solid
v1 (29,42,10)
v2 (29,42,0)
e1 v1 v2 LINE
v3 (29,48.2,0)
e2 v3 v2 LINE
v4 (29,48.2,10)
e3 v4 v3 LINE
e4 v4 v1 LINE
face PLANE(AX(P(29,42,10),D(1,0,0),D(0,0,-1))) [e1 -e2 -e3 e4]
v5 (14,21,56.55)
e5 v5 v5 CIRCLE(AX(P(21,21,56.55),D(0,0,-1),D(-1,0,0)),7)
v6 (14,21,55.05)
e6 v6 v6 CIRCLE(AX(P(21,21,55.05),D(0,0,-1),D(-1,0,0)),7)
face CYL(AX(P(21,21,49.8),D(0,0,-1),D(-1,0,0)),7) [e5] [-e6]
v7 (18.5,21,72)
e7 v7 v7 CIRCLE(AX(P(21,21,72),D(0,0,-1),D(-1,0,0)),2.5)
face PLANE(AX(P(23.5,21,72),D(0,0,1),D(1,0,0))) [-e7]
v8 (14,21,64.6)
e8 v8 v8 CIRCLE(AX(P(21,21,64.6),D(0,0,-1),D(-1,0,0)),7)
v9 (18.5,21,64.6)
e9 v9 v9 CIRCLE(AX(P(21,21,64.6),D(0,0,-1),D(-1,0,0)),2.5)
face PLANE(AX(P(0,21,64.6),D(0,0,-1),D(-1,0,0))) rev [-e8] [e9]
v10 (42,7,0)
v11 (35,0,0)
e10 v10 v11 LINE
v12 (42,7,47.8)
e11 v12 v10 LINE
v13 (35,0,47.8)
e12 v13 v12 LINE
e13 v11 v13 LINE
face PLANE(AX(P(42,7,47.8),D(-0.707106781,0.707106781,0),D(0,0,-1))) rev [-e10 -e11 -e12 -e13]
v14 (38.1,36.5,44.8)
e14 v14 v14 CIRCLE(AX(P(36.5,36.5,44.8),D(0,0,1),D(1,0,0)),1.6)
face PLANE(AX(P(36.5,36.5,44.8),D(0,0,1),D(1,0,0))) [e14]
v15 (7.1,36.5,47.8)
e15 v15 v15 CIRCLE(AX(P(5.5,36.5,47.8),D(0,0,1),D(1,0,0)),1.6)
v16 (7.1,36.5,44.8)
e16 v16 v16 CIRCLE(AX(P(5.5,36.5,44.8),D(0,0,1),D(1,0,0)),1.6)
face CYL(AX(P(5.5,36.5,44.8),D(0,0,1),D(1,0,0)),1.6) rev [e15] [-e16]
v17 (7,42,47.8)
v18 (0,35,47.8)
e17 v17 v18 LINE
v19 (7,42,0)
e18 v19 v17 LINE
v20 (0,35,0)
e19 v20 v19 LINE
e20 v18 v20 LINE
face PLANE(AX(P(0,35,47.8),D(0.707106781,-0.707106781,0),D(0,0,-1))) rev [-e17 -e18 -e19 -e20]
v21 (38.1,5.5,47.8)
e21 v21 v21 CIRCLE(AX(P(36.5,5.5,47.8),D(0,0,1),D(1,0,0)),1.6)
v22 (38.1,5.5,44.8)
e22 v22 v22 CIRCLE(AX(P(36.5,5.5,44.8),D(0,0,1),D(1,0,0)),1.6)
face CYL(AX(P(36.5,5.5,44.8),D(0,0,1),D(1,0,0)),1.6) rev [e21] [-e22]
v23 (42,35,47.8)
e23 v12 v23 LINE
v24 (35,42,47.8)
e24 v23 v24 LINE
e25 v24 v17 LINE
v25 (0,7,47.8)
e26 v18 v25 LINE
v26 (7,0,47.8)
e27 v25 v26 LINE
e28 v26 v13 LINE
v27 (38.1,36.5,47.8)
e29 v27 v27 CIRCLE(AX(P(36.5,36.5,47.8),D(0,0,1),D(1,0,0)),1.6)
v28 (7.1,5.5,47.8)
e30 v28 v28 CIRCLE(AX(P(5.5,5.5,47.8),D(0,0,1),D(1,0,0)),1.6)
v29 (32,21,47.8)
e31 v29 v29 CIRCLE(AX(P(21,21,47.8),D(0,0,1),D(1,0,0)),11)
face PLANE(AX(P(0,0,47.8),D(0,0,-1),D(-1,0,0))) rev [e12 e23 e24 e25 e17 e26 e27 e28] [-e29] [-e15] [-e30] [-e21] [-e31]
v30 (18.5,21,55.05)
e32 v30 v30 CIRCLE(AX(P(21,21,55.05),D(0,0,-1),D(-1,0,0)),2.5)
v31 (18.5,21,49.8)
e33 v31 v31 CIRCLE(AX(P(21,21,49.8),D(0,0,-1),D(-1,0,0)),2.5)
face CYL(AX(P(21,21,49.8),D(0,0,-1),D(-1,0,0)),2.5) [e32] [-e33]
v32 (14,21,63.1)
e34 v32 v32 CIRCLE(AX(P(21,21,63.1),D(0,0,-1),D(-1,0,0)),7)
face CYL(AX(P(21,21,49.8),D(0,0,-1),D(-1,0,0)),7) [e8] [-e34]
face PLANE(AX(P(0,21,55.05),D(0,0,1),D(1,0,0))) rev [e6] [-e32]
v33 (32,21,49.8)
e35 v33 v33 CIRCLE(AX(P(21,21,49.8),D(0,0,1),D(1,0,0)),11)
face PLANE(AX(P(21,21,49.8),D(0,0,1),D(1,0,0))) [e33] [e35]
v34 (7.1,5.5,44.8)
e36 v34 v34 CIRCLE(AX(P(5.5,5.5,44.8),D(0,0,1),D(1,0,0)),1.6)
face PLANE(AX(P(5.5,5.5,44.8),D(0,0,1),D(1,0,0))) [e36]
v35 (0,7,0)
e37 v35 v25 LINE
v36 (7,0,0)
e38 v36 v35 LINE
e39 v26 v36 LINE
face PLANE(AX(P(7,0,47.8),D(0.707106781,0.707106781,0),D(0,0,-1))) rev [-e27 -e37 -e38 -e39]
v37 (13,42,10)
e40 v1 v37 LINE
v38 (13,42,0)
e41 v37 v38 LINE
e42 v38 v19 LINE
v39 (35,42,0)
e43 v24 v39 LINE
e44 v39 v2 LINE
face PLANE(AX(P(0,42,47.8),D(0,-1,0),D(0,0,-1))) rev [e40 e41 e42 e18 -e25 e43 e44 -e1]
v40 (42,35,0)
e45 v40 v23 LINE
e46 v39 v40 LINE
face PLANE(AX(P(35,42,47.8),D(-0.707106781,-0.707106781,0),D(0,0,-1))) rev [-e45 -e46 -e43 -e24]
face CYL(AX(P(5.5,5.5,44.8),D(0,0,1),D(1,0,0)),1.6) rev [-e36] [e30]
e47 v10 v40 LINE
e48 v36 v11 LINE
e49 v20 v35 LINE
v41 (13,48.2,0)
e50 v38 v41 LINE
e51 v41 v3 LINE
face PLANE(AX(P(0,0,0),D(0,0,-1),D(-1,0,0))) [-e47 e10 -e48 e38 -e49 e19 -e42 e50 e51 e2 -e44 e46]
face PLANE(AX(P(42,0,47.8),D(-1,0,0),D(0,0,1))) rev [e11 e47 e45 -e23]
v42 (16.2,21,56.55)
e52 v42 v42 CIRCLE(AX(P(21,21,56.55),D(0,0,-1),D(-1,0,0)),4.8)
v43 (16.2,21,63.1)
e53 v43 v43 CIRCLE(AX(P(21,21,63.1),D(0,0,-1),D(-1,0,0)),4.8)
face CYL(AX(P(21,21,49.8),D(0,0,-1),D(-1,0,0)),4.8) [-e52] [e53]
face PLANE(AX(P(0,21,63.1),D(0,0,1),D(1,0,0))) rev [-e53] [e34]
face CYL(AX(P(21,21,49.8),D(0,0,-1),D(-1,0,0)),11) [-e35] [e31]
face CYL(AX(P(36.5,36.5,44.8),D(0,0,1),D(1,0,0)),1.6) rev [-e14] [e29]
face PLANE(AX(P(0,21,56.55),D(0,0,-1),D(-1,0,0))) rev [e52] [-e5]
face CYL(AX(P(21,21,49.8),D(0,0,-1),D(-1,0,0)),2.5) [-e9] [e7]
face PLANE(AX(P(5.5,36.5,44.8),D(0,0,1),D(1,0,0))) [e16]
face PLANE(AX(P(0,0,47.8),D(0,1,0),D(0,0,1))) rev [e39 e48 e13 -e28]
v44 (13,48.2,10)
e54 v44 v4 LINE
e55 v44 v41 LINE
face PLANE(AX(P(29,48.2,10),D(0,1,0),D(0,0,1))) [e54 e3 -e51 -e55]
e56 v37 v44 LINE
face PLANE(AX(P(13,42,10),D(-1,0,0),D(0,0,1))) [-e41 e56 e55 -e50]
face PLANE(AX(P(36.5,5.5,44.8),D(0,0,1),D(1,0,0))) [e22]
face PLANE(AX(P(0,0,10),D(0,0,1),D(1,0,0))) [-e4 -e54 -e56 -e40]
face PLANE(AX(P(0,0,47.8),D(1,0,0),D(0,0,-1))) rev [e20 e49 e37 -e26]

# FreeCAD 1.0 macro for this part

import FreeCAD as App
import Part
import Sketcher


def edges_at(feature, points):
    """Names of the edges that pass closest to the given points."""
    edges = feature.Shape.Edges
    near = lambda p: min(range(len(edges)), key=lambda i: edges[i].distToShape(Part.Vertex(*p))[0])
    return sorted({f"Edge{near(p) + 1}" for p in points})


def add_polygon(sketch, points):
    """Adds a closed chain of lines whose ends are joined by coincident constraints."""
    first, n = sketch.GeometryCount, len(points)
    for a, b in zip(points, points[1:] + points[:1]):
        sketch.addGeometry(Part.LineSegment(App.Vector(*a, 0), App.Vector(*b, 0)), False)
    for i in range(n):
        sketch.addConstraint(Sketcher.Constraint("Coincident", first + i, 2, first + (i + 1) % n, 1))

doc = App.newDocument("Part")
body = doc.addObject("PartDesign::Body", "Body")

# Sketch on XY plane
sketch1 = body.newObject("Sketcher::SketchObject", "Sketch")
sketch1.AttachmentSupport = (doc.getObject("XY_Plane"), [""])
sketch1.MapMode = "FlatFace"
add_polygon(sketch1, [(0, 42), (0, 0), (42, 0), (42, 42)])  # lines 0-3
sketch1.addConstraint(Sketcher.Constraint("Vertical", 0))
sketch1.addConstraint(Sketcher.Constraint("Horizontal", 1))
sketch1.addConstraint(Sketcher.Constraint("Vertical", 2))
sketch1.addConstraint(Sketcher.Constraint("Horizontal", 3))
sketch1.addConstraint(Sketcher.Constraint("Coincident", 0, 2, -1, 1))
sketch1.addConstraint(Sketcher.Constraint("Equal", 3, 0))
sketch1.addConstraint(Sketcher.Constraint("DistanceX", 1, 1, 1, 2, 42.0))
pad1 = body.newObject("PartDesign::Pad", "Pad")
pad1.Profile = sketch1
pad1.Length = 47.8
doc.recompute()

chamfer = body.newObject("PartDesign::Chamfer", "Chamfer")
chamfer.Base = (pad1, edges_at(pad1, [
    (0, 42, 23.9),
    (42, 42, 23.9),
    (42, 0, 23.9),
    (0, 0, 23.9),
]))
chamfer.Size = 7

# Sketch on XY plane
sketch2 = body.newObject("Sketcher::SketchObject", "Sketch001")
sketch2.AttachmentSupport = (doc.getObject("XY_Plane"), [""])
sketch2.MapMode = "FlatFace"
add_polygon(sketch2, [(29, 48), (29, 42), (13, 42), (13, 48)])  # lines 0-3
sketch2.addConstraint(Sketcher.Constraint("Vertical", 0))
sketch2.addConstraint(Sketcher.Constraint("Horizontal", 1))
sketch2.addConstraint(Sketcher.Constraint("Vertical", 2))
sketch2.addConstraint(Sketcher.Constraint("Horizontal", 3))
sketch2.addConstraint(Sketcher.Constraint("DistanceX", 1, 2, 1, 1, 16.0))
sketch2.addConstraint(Sketcher.Constraint("DistanceY", 0, 2, 0, 1, 6.2))
sketch2.addConstraint(Sketcher.Constraint("DistanceX", -1, 1, 0, 2, 29.0))
sketch2.addConstraint(Sketcher.Constraint("DistanceY", -1, 1, 0, 2, 42.0))
pad2 = body.newObject("PartDesign::Pad", "Pad001")
pad2.Profile = sketch2
pad2.Length = 10

# Sketch on XY plane
sketch3 = body.newObject("Sketcher::SketchObject", "Sketch002")
sketch3.AttachmentSupport = (doc.getObject("XY_Plane"), [""])
sketch3.MapMode = "FlatFace"
sketch3.AttachmentOffset = App.Placement(App.Vector(0, 0, 47.8), App.Rotation())
sketch3.addGeometry(Part.Circle(App.Vector(21, 21, 0), App.Vector(0, 0, 1), 11), False)
sketch3.addConstraint(Sketcher.Constraint("Diameter", 0, 22.0))
sketch3.addConstraint(Sketcher.Constraint("DistanceX", -1, 1, 0, 3, 21.0))
sketch3.addConstraint(Sketcher.Constraint("DistanceY", -1, 1, 0, 3, 21.0))
pad3 = body.newObject("PartDesign::Pad", "Pad002")
pad3.Profile = sketch3
pad3.Length = 2

# Sketch on XY plane
sketch4 = body.newObject("Sketcher::SketchObject", "Sketch003")
sketch4.AttachmentSupport = (doc.getObject("XY_Plane"), [""])
sketch4.MapMode = "FlatFace"
sketch4.AttachmentOffset = App.Placement(App.Vector(0, 0, 47.8), App.Rotation())
sketch4.addGeometry(Part.Circle(App.Vector(5.5, 36.5, 0), App.Vector(0, 0, 1), 1.6), False)
sketch4.addGeometry(Part.Circle(App.Vector(36.5, 36.5, 0), App.Vector(0, 0, 1), 1.6), False)
sketch4.addGeometry(Part.Circle(App.Vector(36.5, 5.5, 0), App.Vector(0, 0, 1), 1.6), False)
sketch4.addGeometry(Part.Circle(App.Vector(5.5, 5.5, 0), App.Vector(0, 0, 1), 1.6), False)
sketch4.addConstraint(Sketcher.Constraint("Equal", 0, 1))
sketch4.addConstraint(Sketcher.Constraint("Equal", 1, 2))
sketch4.addConstraint(Sketcher.Constraint("Equal", 2, 3))
sketch4.addConstraint(Sketcher.Constraint("Horizontal", 0, 3, 1, 3))
sketch4.addConstraint(Sketcher.Constraint("Horizontal", 2, 3, 3, 3))
sketch4.addConstraint(Sketcher.Constraint("Vertical", 1, 3, 2, 3))
sketch4.addConstraint(Sketcher.Constraint("Vertical", 0, 3, 3, 3))
sketch4.addConstraint(Sketcher.Constraint("Diameter", 0, 3.2))
sketch4.addConstraint(Sketcher.Constraint("DistanceX", 0, 3, 1, 3, 31.0))
sketch4.addConstraint(Sketcher.Constraint("DistanceY", 2, 3, 1, 3, 31.0))
sketch4.addConstraint(Sketcher.Constraint("DistanceX", -1, 1, 0, 3, 5.5))
sketch4.addConstraint(Sketcher.Constraint("DistanceY", -1, 1, 0, 3, 36.5))
pocket1 = body.newObject("PartDesign::Pocket", "Pocket")
pocket1.Profile = sketch4
pocket1.Length = 3

# Sketch on XZ plane
sketch5 = body.newObject("Sketcher::SketchObject", "Sketch004")
sketch5.AttachmentSupport = (doc.getObject("XZ_Plane"), [""])
sketch5.MapMode = "FlatFace"
sketch5.AttachmentOffset = App.Placement(App.Vector(0, 0, -21), App.Rotation())
add_polygon(sketch5, [(23.5, 49.8), (21, 49.8), (21, 72), (23.5, 72), (23.5, 64.6), (28, 64.6), (28, 63.1), (25.8, 63.1), (25.8, 56.5), (28, 56.5), (28, 55), (23.5, 55)])  # lines 0-11
sketch5.addGeometry(Part.LineSegment(App.Vector(21, 49.8, 0), App.Vector(21, 72, 0)), True)  # axis
sketch5.addConstraint(Sketcher.Constraint("Horizontal", 0))
sketch5.addConstraint(Sketcher.Constraint("Vertical", 1))
sketch5.addConstraint(Sketcher.Constraint("Horizontal", 2))
sketch5.addConstraint(Sketcher.Constraint("Vertical", 3))
sketch5.addConstraint(Sketcher.Constraint("Horizontal", 4))
sketch5.addConstraint(Sketcher.Constraint("Vertical", 5))
sketch5.addConstraint(Sketcher.Constraint("Horizontal", 6))
sketch5.addConstraint(Sketcher.Constraint("Vertical", 7))
sketch5.addConstraint(Sketcher.Constraint("Horizontal", 8))
sketch5.addConstraint(Sketcher.Constraint("Vertical", 9))
sketch5.addConstraint(Sketcher.Constraint("Horizontal", 10))
sketch5.addConstraint(Sketcher.Constraint("Vertical", 11))
sketch5.addConstraint(Sketcher.Constraint("Vertical", 12))
sketch5.addConstraint(Sketcher.Constraint("Coincident", 12, 1, 0, 2))
sketch5.addConstraint(Sketcher.Constraint("Horizontal", 2, 2, 12, 2))
sketch5.addConstraint(Sketcher.Constraint("Vertical", 5, 2, 8, 2))
sketch5.addConstraint(Sketcher.Constraint("Vertical", 3, 2, 10, 2))
sketch5.addConstraint(Sketcher.Constraint("Equal", 5, 9))
sketch5.addConstraint(Sketcher.Constraint("DistanceX", 0, 2, 0, 1, 2.5))
sketch5.addConstraint(Sketcher.Constraint("DistanceX", 4, 1, 4, 2, 4.5))
sketch5.addConstraint(Sketcher.Constraint("DistanceX", 6, 2, 6, 1, 2.2))
sketch5.addConstraint(Sketcher.Constraint("DistanceY", 1, 1, 1, 2, 22.2))
sketch5.addConstraint(Sketcher.Constraint("DistanceY", 3, 2, 3, 1, 7.4))
sketch5.addConstraint(Sketcher.Constraint("DistanceY", 5, 2, 5, 1, 1.5))
sketch5.addConstraint(Sketcher.Constraint("DistanceX", -1, 1, 0, 2, 21.0))
sketch5.addConstraint(Sketcher.Constraint("DistanceY", -1, 1, 1, 2, 72.0))
sketch5.addConstraint(Sketcher.Constraint("DistanceY", 7, 2, 7, 1, 6.55))
revolution = body.newObject("PartDesign::Revolution", "Revolution")
revolution.Profile = sketch5
revolution.ReferenceAxis = (sketch5, ["Axis0"])
revolution.Angle = 360

doc.recompute()
